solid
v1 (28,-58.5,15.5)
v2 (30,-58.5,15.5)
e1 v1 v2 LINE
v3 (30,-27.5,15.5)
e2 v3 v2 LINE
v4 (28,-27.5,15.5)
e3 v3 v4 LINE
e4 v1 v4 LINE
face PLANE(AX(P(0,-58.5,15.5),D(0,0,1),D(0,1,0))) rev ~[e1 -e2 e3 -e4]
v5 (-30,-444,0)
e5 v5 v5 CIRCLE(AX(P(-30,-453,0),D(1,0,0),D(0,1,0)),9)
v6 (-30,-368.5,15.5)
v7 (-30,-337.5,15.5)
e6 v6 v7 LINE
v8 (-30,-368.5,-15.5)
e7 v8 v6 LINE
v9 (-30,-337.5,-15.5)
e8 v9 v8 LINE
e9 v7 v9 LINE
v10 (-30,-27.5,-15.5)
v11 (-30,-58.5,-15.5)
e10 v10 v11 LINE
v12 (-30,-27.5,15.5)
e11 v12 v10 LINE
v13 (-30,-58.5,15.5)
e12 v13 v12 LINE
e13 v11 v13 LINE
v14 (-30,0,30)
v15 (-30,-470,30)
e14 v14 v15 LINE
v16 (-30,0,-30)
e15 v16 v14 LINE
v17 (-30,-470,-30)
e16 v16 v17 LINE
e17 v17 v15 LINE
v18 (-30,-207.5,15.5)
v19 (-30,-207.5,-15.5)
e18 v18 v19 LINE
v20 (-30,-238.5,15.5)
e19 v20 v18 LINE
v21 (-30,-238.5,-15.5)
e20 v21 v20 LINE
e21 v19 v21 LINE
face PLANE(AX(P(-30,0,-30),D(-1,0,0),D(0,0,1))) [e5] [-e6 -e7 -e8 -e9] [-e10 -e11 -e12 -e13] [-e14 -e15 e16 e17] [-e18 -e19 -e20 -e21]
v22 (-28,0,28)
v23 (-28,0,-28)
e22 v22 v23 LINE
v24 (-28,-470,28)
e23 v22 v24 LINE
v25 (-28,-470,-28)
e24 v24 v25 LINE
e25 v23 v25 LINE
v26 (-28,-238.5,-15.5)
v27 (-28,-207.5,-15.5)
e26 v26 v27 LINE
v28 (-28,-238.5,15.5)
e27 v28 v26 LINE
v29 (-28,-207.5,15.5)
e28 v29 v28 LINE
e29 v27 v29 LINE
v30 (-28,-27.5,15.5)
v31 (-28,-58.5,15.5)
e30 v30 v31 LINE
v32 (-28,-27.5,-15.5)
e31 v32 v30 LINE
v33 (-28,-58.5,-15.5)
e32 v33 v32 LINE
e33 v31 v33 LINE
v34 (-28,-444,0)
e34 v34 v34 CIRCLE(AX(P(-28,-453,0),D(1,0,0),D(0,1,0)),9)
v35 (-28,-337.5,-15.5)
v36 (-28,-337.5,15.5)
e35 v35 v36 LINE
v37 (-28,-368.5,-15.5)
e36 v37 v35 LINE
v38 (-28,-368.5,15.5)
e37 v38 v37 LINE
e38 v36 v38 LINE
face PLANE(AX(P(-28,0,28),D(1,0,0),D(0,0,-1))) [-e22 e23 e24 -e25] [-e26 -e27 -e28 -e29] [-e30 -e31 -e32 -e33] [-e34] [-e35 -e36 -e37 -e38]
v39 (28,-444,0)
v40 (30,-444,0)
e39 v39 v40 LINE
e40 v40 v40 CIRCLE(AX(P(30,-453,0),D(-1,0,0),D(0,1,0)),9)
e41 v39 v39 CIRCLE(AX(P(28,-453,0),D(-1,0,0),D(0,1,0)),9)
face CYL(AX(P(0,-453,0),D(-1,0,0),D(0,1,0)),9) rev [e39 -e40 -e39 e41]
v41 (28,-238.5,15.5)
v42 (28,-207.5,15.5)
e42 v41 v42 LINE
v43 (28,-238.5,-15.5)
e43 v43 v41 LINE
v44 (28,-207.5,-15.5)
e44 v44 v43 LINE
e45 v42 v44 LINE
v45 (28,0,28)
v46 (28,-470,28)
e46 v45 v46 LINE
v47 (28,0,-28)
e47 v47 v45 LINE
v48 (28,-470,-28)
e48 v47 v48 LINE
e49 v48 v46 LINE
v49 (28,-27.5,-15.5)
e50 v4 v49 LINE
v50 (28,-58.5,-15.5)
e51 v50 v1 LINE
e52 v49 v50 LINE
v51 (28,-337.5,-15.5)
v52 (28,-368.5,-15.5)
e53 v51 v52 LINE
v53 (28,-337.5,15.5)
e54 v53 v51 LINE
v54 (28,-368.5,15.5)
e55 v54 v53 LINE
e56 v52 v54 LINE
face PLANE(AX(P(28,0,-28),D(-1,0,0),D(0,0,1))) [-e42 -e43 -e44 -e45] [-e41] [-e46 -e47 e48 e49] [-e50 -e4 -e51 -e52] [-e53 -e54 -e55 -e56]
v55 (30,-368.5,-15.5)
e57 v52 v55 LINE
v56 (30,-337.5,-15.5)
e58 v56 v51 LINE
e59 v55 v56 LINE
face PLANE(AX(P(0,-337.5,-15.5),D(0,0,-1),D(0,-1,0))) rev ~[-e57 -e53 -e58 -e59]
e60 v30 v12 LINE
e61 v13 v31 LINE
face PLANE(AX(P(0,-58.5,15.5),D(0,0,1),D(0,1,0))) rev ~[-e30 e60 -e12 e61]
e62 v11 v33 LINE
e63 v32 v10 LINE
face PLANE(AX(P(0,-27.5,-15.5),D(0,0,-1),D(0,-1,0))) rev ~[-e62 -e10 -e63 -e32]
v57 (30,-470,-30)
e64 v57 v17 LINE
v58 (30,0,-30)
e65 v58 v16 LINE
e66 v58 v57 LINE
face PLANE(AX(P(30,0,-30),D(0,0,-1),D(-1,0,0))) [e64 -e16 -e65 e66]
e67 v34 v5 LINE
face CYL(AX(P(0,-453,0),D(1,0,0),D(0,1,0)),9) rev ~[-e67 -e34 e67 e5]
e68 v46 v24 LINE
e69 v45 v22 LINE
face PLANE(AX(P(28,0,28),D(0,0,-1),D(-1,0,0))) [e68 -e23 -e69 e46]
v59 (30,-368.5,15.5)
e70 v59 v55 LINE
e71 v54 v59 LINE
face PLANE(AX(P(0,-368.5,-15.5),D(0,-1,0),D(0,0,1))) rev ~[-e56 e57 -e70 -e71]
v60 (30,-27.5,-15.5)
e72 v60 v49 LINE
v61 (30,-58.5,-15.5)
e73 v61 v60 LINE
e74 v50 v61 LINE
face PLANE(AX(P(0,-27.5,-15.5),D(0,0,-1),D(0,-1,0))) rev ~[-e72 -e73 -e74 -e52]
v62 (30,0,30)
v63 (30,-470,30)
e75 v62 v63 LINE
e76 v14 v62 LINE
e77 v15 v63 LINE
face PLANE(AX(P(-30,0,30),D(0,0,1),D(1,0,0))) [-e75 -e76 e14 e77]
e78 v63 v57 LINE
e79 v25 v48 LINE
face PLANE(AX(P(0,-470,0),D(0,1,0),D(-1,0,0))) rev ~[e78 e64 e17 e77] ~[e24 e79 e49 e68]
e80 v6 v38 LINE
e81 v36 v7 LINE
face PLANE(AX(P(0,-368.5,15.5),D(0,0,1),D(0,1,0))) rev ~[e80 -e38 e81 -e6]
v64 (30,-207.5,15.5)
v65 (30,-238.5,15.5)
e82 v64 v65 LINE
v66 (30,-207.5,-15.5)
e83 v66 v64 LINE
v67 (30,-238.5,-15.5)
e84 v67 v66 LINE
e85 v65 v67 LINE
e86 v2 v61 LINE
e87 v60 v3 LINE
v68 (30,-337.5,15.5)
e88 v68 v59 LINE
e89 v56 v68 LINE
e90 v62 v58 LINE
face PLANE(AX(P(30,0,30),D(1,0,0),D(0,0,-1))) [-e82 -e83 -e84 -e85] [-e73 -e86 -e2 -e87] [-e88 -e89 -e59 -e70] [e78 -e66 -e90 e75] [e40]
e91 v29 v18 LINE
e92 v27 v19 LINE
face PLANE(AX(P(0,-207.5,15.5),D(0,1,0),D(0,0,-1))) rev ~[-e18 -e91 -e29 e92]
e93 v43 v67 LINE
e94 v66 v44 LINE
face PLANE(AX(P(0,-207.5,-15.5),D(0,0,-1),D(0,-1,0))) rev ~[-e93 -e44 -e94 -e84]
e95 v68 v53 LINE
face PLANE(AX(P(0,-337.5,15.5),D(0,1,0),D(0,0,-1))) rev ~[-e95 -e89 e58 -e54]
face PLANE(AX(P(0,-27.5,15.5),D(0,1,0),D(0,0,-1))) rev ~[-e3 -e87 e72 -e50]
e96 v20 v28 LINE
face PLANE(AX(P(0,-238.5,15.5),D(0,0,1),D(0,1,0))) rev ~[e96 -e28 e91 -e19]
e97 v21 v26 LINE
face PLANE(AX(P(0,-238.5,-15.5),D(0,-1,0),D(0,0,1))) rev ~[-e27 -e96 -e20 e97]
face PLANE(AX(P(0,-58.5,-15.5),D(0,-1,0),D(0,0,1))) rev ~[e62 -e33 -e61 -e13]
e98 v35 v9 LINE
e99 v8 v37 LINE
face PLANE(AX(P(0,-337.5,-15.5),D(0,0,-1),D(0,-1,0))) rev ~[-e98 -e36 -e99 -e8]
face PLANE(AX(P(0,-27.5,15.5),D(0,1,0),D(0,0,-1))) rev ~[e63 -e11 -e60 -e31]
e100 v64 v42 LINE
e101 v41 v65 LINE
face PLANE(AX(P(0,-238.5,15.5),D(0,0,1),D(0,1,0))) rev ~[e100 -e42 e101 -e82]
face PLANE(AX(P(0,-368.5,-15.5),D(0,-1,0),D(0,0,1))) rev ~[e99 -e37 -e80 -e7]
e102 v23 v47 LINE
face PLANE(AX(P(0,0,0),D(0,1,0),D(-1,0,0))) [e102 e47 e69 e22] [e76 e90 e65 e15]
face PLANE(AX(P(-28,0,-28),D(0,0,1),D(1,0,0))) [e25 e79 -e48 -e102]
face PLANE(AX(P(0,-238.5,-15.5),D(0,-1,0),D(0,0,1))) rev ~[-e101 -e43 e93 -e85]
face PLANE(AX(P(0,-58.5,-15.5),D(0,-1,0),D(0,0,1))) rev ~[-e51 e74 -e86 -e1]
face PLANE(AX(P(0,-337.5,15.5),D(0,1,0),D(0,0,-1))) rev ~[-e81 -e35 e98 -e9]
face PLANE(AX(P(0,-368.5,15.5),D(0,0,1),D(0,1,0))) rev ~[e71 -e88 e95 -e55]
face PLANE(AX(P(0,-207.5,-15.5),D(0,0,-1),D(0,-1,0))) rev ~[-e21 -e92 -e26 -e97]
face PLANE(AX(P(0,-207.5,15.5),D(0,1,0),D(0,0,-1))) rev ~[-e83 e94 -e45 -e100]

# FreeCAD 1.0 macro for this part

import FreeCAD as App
import Part
import Sketcher
Q = App.Units.Quantity


def add_polygon(sketch, points):
    """Adds a closed chain of lines whose ends are joined by coincident constraints."""
    first, n = sketch.GeometryCount, len(points)
    for a, b in zip(points, points[1:] + points[:1]):
        sketch.addGeometry(Part.LineSegment(App.Vector(*a, 0), App.Vector(*b, 0)), False)
    for i in range(n):
        sketch.addConstraint(Sketcher.Constraint("Coincident", first + i, 2, first + (i + 1) % n, 1))

doc = App.newDocument("Part")
body = doc.addObject("PartDesign::Body", "Body")

# Sketch on XZ plane
sketch1 = body.newObject("Sketcher::SketchObject", "Sketch")
sketch1.AttachmentSupport = (doc.getObject("XZ_Plane"), [""])
sketch1.MapMode = "FlatFace"
add_polygon(sketch1, [(-30, -30), (-30, 30), (30, 30), (30, -30)])  # lines 0-3
add_polygon(sketch1, [(28, -28), (28, 28), (-28, 28), (-28, -28)])  # lines 4-7
sketch1.addConstraint(Sketcher.Constraint("Vertical", 0))
sketch1.addConstraint(Sketcher.Constraint("Horizontal", 1))
sketch1.addConstraint(Sketcher.Constraint("Vertical", 2))
sketch1.addConstraint(Sketcher.Constraint("Horizontal", 3))
sketch1.addConstraint(Sketcher.Constraint("Vertical", 4))
sketch1.addConstraint(Sketcher.Constraint("Horizontal", 5))
sketch1.addConstraint(Sketcher.Constraint("Vertical", 6))
sketch1.addConstraint(Sketcher.Constraint("Horizontal", 7))
sketch1.addConstraint(Sketcher.Constraint("Symmetric", 0, 2, 2, 2, -1, 1))
sketch1.addConstraint(Sketcher.Constraint("Symmetric", 4, 2, 6, 2, -1, 1))
sketch1.addConstraint(Sketcher.Constraint("Equal", 3, 0))
sketch1.addConstraint(Sketcher.Constraint("Equal", 7, 4))
sketch1.addConstraint(Sketcher.Constraint("DistanceX", 1, 1, 1, 2, Q("60 mm")))
sketch1.addConstraint(Sketcher.Constraint("DistanceX", 4, 2, 1, 2, Q("2 mm")))
pad1 = body.newObject("PartDesign::Pad", "Pad")
pad1.Profile = sketch1
pad1.Length = 470

# Sketch on YZ plane
sketch2 = body.newObject("Sketcher::SketchObject", "Sketch001")
sketch2.AttachmentSupport = (doc.getObject("YZ_Plane"), [""])
sketch2.MapMode = "FlatFace"
add_polygon(sketch2, [(-28, 16), (-58, 16), (-58, -16), (-28, -16)])  # lines 0-3
add_polygon(sketch2, [(-208, 16), (-238, 16), (-238, -16), (-208, -16)])  # lines 4-7
add_polygon(sketch2, [(-338, 16), (-368, 16), (-368, -16), (-338, -16)])  # lines 8-11
sketch2.addGeometry(Part.Circle(App.Vector(-453, 0, 0), App.Vector(0, 0, 1), 9), False)  # 12
sketch2.addConstraint(Sketcher.Constraint("Horizontal", 0))
sketch2.addConstraint(Sketcher.Constraint("Vertical", 1))
sketch2.addConstraint(Sketcher.Constraint("Horizontal", 2))
sketch2.addConstraint(Sketcher.Constraint("Vertical", 3))
sketch2.addConstraint(Sketcher.Constraint("Horizontal", 4))
sketch2.addConstraint(Sketcher.Constraint("Vertical", 5))
sketch2.addConstraint(Sketcher.Constraint("Horizontal", 6))
sketch2.addConstraint(Sketcher.Constraint("Vertical", 7))
sketch2.addConstraint(Sketcher.Constraint("Horizontal", 8))
sketch2.addConstraint(Sketcher.Constraint("Vertical", 9))
sketch2.addConstraint(Sketcher.Constraint("Horizontal", 10))
sketch2.addConstraint(Sketcher.Constraint("Vertical", 11))
sketch2.addConstraint(Sketcher.Constraint("PointOnObject", 12, 3, -1))
sketch2.addConstraint(Sketcher.Constraint("Horizontal", 3, 2, 4, 2))
sketch2.addConstraint(Sketcher.Constraint("Horizontal", 2, 2, 5, 2))
sketch2.addConstraint(Sketcher.Constraint("Horizontal", 7, 2, 8, 2))
sketch2.addConstraint(Sketcher.Constraint("Horizontal", 6, 2, 9, 2))
sketch2.addConstraint(Sketcher.Constraint("Equal", 2, 4))
sketch2.addConstraint(Sketcher.Constraint("Equal", 6, 8))
sketch2.addConstraint(Sketcher.Constraint("Equal", 10, 1))
sketch2.addConstraint(Sketcher.Constraint("Diameter", 12, Q("18 mm")))
sketch2.addConstraint(Sketcher.Constraint("DistanceX", 0, 2, 0, 1, Q("31 mm")))
sketch2.addConstraint(Sketcher.Constraint("DistanceX", 12, 3, -1, 1, Q("453 mm")))
sketch2.addConstraint(Sketcher.Constraint("DistanceX", 4, 2, 0, 2, Q("180 mm")))
sketch2.addConstraint(Sketcher.Constraint("DistanceX", 8, 2, 4, 2, Q("130 mm")))
sketch2.addConstraint(Sketcher.Constraint("DistanceX", 0, 2, -1, 1, Q("58.5 mm")))
sketch2.addConstraint(Sketcher.Constraint("DistanceY", -1, 1, 0, 2, Q("15.5 mm")))
pocket1 = body.newObject("PartDesign::Pocket", "Pocket")
pocket1.Profile = sketch2
pocket1.Type = "ThroughAll"
pocket1.Midplane = True

doc.recompute()
